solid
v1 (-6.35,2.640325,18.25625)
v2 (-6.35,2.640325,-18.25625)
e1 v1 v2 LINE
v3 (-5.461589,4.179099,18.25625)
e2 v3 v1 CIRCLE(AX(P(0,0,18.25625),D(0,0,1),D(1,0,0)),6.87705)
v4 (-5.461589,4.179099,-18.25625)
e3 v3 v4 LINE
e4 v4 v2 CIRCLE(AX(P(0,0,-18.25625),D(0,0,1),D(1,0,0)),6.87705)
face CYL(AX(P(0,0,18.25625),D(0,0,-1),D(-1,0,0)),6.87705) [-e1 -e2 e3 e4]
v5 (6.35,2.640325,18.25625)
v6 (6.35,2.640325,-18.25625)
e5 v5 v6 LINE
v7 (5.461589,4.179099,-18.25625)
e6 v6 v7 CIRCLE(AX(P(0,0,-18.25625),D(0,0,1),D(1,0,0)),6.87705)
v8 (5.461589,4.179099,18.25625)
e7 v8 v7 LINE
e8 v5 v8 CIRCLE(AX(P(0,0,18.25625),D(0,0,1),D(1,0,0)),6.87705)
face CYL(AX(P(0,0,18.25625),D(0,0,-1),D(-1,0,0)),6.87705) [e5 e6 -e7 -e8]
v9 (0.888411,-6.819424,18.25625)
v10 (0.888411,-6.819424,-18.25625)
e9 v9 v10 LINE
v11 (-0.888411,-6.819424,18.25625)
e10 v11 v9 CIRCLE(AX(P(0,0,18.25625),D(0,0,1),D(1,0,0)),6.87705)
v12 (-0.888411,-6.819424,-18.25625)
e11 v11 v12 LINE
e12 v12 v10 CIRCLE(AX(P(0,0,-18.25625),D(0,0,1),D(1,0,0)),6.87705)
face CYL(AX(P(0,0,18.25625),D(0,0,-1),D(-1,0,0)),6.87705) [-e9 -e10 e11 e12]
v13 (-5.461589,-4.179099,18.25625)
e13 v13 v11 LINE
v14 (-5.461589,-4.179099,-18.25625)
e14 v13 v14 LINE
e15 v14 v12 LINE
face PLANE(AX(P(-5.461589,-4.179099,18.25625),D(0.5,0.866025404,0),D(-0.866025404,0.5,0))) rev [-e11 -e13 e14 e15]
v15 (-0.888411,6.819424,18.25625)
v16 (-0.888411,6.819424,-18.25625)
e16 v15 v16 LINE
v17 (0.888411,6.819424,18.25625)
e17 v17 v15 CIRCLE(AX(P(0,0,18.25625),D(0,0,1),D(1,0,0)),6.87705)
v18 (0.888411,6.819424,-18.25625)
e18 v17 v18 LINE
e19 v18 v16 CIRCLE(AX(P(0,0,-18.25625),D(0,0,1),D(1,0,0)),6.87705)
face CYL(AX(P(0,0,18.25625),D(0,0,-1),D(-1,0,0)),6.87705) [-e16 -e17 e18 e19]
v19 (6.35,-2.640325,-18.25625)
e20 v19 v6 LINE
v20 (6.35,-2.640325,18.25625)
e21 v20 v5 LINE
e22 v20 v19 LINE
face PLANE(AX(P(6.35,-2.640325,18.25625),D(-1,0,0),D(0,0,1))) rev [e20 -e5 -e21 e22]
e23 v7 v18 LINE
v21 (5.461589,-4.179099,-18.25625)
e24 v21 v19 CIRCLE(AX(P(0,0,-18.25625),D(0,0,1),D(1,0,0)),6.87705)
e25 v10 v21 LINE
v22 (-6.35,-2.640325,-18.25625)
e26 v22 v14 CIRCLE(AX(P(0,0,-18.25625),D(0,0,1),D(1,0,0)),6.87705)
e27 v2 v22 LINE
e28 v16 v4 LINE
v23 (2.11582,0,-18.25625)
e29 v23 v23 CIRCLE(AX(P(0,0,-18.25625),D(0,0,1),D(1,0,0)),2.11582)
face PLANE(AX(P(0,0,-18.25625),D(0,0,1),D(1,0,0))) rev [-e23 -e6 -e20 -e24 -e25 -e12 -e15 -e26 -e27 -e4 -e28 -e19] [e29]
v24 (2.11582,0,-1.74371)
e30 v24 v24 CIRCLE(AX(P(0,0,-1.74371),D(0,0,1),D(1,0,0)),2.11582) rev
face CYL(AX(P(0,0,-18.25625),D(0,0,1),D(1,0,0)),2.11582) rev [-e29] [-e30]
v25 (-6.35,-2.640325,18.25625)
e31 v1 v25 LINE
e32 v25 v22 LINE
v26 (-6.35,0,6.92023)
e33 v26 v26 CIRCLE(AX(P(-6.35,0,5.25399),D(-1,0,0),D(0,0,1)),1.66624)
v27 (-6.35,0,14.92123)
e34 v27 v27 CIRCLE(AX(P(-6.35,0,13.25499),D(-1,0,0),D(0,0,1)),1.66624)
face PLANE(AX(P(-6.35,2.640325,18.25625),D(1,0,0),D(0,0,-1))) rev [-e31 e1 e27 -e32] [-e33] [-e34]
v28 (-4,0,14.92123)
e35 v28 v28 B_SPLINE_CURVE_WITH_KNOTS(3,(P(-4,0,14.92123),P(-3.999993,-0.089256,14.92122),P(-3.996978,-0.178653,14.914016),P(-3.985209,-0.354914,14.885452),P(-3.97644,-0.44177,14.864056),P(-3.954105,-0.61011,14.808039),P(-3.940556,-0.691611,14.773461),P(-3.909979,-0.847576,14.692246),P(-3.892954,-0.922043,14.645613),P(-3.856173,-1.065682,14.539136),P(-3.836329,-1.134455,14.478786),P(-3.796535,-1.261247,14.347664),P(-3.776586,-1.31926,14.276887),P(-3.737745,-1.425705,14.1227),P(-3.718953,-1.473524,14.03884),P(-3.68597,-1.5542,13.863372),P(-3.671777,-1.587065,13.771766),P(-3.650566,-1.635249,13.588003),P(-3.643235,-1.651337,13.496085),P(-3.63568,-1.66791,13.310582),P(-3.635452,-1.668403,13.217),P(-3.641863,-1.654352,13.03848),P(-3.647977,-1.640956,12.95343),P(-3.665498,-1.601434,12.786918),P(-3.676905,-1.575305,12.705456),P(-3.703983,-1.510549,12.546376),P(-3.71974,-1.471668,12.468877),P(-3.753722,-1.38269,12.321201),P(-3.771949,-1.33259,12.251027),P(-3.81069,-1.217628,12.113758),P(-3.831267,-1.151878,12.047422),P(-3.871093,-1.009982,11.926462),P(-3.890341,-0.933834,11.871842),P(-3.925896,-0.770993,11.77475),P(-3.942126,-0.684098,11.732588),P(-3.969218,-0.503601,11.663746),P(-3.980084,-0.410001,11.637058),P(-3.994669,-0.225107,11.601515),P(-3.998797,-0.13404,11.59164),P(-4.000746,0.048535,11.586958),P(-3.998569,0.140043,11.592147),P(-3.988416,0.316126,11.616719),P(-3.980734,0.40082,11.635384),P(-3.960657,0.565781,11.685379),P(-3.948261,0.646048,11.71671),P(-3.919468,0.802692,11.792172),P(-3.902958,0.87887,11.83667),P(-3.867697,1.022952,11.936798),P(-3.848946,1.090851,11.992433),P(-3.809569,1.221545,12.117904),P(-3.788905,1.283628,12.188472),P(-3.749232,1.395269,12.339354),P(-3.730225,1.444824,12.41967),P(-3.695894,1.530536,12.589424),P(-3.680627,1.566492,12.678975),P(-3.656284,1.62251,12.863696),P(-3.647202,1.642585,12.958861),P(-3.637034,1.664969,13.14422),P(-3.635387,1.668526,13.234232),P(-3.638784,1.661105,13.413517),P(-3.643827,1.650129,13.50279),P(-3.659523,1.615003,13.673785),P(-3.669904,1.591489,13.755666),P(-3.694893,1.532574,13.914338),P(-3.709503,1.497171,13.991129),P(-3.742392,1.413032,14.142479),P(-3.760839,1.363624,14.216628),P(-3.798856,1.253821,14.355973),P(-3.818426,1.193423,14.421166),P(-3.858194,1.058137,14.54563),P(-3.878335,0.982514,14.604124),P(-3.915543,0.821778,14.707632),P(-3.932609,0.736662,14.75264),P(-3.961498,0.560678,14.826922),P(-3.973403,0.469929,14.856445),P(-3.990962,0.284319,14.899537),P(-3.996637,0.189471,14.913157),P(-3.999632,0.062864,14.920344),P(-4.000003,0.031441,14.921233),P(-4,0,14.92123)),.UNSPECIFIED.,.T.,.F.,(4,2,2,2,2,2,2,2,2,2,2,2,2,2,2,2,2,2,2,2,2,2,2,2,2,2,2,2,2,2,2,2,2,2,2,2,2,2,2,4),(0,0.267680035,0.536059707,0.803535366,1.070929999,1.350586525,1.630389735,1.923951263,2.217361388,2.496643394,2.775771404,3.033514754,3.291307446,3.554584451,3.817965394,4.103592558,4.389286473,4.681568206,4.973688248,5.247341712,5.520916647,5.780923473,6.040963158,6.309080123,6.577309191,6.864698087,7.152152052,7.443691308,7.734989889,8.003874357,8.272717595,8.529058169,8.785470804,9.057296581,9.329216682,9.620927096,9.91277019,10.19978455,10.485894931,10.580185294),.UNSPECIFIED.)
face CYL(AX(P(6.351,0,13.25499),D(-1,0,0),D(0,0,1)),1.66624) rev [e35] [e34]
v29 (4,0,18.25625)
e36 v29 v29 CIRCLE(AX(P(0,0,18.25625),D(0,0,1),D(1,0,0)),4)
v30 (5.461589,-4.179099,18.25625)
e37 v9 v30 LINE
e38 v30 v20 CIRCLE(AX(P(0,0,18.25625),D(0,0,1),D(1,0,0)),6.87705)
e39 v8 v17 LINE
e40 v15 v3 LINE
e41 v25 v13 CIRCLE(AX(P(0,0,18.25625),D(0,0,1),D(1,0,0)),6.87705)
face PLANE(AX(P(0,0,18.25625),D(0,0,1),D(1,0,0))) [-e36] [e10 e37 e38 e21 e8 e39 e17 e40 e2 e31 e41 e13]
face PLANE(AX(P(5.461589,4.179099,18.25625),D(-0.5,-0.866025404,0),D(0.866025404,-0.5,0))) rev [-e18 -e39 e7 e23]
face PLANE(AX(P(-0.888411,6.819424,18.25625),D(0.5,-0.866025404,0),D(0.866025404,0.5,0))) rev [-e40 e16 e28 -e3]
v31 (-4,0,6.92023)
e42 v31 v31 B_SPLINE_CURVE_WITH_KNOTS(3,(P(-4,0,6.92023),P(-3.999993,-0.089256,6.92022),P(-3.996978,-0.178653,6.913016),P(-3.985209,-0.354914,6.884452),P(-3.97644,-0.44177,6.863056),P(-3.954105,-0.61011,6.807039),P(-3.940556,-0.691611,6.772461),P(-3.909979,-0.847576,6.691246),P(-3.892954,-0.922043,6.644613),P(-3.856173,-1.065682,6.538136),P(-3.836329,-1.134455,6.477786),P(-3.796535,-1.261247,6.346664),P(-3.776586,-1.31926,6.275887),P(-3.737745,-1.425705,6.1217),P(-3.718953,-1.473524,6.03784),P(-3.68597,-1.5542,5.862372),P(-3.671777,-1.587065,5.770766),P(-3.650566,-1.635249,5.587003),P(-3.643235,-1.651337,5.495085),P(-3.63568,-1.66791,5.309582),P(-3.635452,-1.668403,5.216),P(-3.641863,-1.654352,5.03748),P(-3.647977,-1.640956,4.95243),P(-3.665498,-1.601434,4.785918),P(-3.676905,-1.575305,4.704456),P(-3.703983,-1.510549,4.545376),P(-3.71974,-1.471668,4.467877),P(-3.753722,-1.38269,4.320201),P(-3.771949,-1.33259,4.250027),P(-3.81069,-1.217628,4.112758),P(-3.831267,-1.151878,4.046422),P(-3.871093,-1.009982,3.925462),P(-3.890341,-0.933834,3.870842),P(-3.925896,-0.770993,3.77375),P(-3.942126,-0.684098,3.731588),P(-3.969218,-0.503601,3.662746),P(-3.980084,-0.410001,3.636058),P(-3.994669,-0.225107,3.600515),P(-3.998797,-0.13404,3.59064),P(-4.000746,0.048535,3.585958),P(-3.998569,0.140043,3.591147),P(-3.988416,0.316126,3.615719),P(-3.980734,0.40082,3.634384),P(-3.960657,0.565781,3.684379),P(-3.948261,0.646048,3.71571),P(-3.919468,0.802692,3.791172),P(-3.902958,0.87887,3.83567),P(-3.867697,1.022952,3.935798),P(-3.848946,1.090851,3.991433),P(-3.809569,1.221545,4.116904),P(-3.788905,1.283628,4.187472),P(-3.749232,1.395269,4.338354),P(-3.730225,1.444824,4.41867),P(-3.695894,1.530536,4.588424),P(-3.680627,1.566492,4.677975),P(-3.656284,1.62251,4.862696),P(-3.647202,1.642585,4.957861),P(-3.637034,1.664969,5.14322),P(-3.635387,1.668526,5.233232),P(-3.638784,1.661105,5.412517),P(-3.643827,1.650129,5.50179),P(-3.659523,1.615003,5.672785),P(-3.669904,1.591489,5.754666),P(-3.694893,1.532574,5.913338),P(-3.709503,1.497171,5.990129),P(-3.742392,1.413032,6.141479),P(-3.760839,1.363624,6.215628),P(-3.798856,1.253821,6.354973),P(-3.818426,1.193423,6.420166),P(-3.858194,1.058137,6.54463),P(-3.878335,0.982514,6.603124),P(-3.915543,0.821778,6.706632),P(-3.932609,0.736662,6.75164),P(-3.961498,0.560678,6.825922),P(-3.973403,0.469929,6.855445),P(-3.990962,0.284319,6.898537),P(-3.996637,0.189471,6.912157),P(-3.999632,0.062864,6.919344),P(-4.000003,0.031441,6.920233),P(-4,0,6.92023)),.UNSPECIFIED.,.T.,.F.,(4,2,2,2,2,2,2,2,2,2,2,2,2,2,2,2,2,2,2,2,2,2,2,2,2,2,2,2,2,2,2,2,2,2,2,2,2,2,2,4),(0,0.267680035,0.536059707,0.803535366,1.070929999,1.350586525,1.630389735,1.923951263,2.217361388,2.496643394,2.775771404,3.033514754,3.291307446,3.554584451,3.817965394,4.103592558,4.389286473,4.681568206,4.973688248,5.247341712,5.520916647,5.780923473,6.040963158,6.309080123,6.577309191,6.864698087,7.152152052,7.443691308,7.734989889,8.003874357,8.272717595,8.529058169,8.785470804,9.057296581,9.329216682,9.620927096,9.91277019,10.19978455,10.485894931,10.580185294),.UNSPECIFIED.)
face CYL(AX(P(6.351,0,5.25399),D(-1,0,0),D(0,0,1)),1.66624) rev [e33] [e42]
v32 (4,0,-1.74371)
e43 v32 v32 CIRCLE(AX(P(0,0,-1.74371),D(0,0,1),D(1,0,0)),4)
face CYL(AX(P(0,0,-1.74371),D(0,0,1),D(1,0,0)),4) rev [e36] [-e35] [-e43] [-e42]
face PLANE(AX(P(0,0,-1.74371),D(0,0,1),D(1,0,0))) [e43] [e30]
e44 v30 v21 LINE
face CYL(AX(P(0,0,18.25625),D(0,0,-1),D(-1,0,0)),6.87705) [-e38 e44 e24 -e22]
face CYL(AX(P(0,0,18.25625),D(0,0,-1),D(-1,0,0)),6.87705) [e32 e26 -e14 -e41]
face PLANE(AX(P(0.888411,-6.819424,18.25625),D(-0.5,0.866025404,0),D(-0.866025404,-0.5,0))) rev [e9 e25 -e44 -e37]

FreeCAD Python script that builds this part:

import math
import FreeCAD as App
import Part
import Sketcher
from FreeCAD import Vector
Q = App.Units.Quantity

doc = App.newDocument("Part")
params = doc.addObject("Spreadsheet::Sheet", "Params")
for row, (alias, value) in enumerate([
    ("sketch1_diameter", "0.5 in"),
    ("pad1_length", "0.71875 in"),
    ("pad1_length2", "0.71875 in"),
    ("pad2_length", "1.4375 in"),
    ("pocket2_length", "0.7874 in"),
], start=1):
    params.set(f"A{row}", alias)
    params.set(f"B{row}", "=" + value)
    params.setAlias(f"B{row}", alias)

body = doc.addObject("PartDesign::Body", "Body")

# Sketch on XY plane
sketch1 = body.newObject("Sketcher::SketchObject", "Sketch")
sketch1.AttachmentSupport = (doc.getObject("XY_Plane"), [""])
sketch1.MapMode = "FlatFace"
sketch1.addGeometry(Part.Circle(Vector(0, 0, 0), Vector(0, 0, 1), 6), False)
sketch1.addConstraint(Sketcher.Constraint("Coincident", 0, 3, -1, 1))
sketch1.addConstraint(Sketcher.Constraint("Diameter", 0, Q("0.5 in")))
sketch1.setExpression("Constraints[1]", "Params.sketch1_diameter")
pad1 = body.newObject("PartDesign::Pad", "Pad")
pad1.Profile = sketch1
pad1.Type = "TwoLengths"
pad1.setExpression("Length", "Params.pad1_length")
pad1.setExpression("Length2", "Params.pad1_length2")

# Sketch on XY plane
sketch2 = body.newObject("Sketcher::SketchObject", "Sketch001")
sketch2.AttachmentSupport = (doc.getObject("XY_Plane"), [""])
sketch2.MapMode = "FlatFace"
sketch2.addGeometry(Part.LineSegment(Vector(-0.9, 6.8, 0), Vector(-5.5, 4.2, 0)), False)
sketch2.addGeometry(Part.ArcOfCircle(Part.Circle(Vector(0, 0, 0), Vector(0, 0, 1), 6.9), math.radians(142.58), math.radians(157.42)), False)
sketch2.addGeometry(Part.LineSegment(Vector(-6.3, 2.6, 0), Vector(-6.3, -2.6, 0)), False)
sketch2.addGeometry(Part.ArcOfCircle(Part.Circle(Vector(0, 0, 0), Vector(0, 0, 1), 6.9), math.radians(-157.42), math.radians(-142.58)), False)
sketch2.addGeometry(Part.LineSegment(Vector(-5.5, -4.2, 0), Vector(-0.9, -6.8, 0)), False)
sketch2.addGeometry(Part.ArcOfCircle(Part.Circle(Vector(0, 0, 0), Vector(0, 0, 1), 6.9), math.radians(-97.42), math.radians(-82.58)), False)
sketch2.addGeometry(Part.LineSegment(Vector(0.9, -6.8, 0), Vector(5.5, -4.2, 0)), False)
sketch2.addGeometry(Part.ArcOfCircle(Part.Circle(Vector(0, 0, 0), Vector(0, 0, 1), 6.9), math.radians(-37.42), math.radians(-22.58)), False)
sketch2.addGeometry(Part.LineSegment(Vector(6.3, -2.6, 0), Vector(6.3, 2.6, 0)), False)
sketch2.addGeometry(Part.ArcOfCircle(Part.Circle(Vector(0, 0, 0), Vector(0, 0, 1), 6.9), math.radians(22.58), math.radians(37.42)), False)
sketch2.addGeometry(Part.LineSegment(Vector(5.5, 4.2, 0), Vector(0.9, 6.8, 0)), False)
sketch2.addGeometry(Part.ArcOfCircle(Part.Circle(Vector(0, 0, 0), Vector(0, 0, 1), 6.9), math.radians(82.58), math.radians(97.42)), False)
sketch2.addConstraint(Sketcher.Constraint("Coincident", 0, 2, 1, 1))
sketch2.addConstraint(Sketcher.Constraint("Coincident", 1, 2, 2, 1))
sketch2.addConstraint(Sketcher.Constraint("Coincident", 2, 2, 3, 1))
sketch2.addConstraint(Sketcher.Constraint("Coincident", 3, 2, 4, 1))
sketch2.addConstraint(Sketcher.Constraint("Coincident", 4, 2, 5, 1))
sketch2.addConstraint(Sketcher.Constraint("Coincident", 5, 2, 6, 1))
sketch2.addConstraint(Sketcher.Constraint("Coincident", 6, 2, 7, 1))
sketch2.addConstraint(Sketcher.Constraint("Coincident", 7, 2, 8, 1))
sketch2.addConstraint(Sketcher.Constraint("Coincident", 8, 2, 9, 1))
sketch2.addConstraint(Sketcher.Constraint("Coincident", 9, 2, 10, 1))
sketch2.addConstraint(Sketcher.Constraint("Coincident", 10, 2, 11, 1))
sketch2.addConstraint(Sketcher.Constraint("Coincident", 11, 2, 0, 1))
sketch2.addConstraint(Sketcher.Constraint("Vertical", 2))
sketch2.addConstraint(Sketcher.Constraint("Vertical", 8))
sketch2.addConstraint(Sketcher.Constraint("Coincident", 1, 3, -1, 1))
sketch2.addConstraint(Sketcher.Constraint("Coincident", 3, 3, -1, 1))
sketch2.addConstraint(Sketcher.Constraint("Coincident", 5, 3, -1, 1))
sketch2.addConstraint(Sketcher.Constraint("Coincident", 7, 3, -1, 1))
sketch2.addConstraint(Sketcher.Constraint("Coincident", 9, 3, -1, 1))
sketch2.addConstraint(Sketcher.Constraint("Coincident", 11, 3, -1, 1))
sketch2.addConstraint(Sketcher.Constraint("Equal", 1, 3))
sketch2.addConstraint(Sketcher.Constraint("Equal", 3, 5))
sketch2.addConstraint(Sketcher.Constraint("Equal", 5, 7))
sketch2.addConstraint(Sketcher.Constraint("Equal", 7, 9))
sketch2.addConstraint(Sketcher.Constraint("Equal", 9, 11))
sketch2.addConstraint(Sketcher.Constraint("Parallel", 0, 6))
sketch2.addConstraint(Sketcher.Constraint("Parallel", 4, 10))
sketch2.addConstraint(Sketcher.Constraint("Horizontal", 4, 2, 5, 2))
sketch2.addConstraint(Sketcher.Constraint("Horizontal", 3, 2, 6, 2))
sketch2.addConstraint(Sketcher.Constraint("Horizontal", 2, 2, 7, 2))
sketch2.addConstraint(Sketcher.Constraint("Horizontal", 0, 2, 9, 2))
sketch2.addConstraint(Sketcher.Constraint("Vertical", 0, 2, 3, 2))
sketch2.addConstraint(Sketcher.Constraint("Angle", 0, Q("-150 deg")))
sketch2.addConstraint(Sketcher.Constraint("DistanceX", 1, 2, -1, 1, Q("0.25 in")))
sketch2.addConstraint(Sketcher.Constraint("DistanceX", 3, 2, 5, 2, Q("0.25 in")))
sketch2.addConstraint(Sketcher.Constraint("Radius", 1, Q("6.87705 mm")))
pad2 = body.newObject("PartDesign::Pad", "Pad001")
pad2.Profile = sketch2
pad2.setExpression("Length", "Params.pad2_length")
pad2.Midplane = True

# Sketch on XY plane
sketch3 = body.newObject("Sketcher::SketchObject", "Sketch002")
sketch3.AttachmentSupport = (doc.getObject("XY_Plane"), [""])
sketch3.MapMode = "FlatFace"
sketch3.addGeometry(Part.Circle(Vector(0, 0, 0), Vector(0, 0, 1), 2.1), False)
sketch3.addConstraint(Sketcher.Constraint("Coincident", 0, 3, -1, 1))
sketch3.addConstraint(Sketcher.Constraint("Diameter", 0, Q("0.1666 in")))
pocket1 = body.newObject("PartDesign::Pocket", "Pocket")
pocket1.Profile = sketch3
pocket1.Type = "ThroughAll"
pocket1.Midplane = True

# Sketch on XY plane
sketch4 = body.newObject("Sketcher::SketchObject", "Sketch003")
sketch4.AttachmentSupport = (doc.getObject("XY_Plane"), [""])
sketch4.MapMode = "FlatFace"
sketch4.AttachmentOffset = App.Placement(Vector(0, 0, 0.71875 * 25.4), App.Rotation())
sketch4.addGeometry(Part.Circle(Vector(0, 0, 0), Vector(0, 0, 1), 4), False)
sketch4.addConstraint(Sketcher.Constraint("Coincident", 0, 3, -1, 1))
sketch4.addConstraint(Sketcher.Constraint("Diameter", 0, Q("8 mm")))
pocket2 = body.newObject("PartDesign::Pocket", "Pocket001")
pocket2.Profile = sketch4
pocket2.setExpression("Length", "Params.pocket2_length")

# Sketch on YZ plane
sketch5 = body.newObject("Sketcher::SketchObject", "Sketch004")
sketch5.AttachmentSupport = (doc.getObject("YZ_Plane"), [""])
sketch5.MapMode = "FlatFace"
sketch5.AttachmentOffset = App.Placement(Vector(0, 0, -0.25 * 25.4), App.Rotation())
sketch5.addGeometry(Part.Circle(Vector(0, 5.3, 0), Vector(0, 0, 1), 1.7), False)
sketch5.addConstraint(Sketcher.Constraint("PointOnObject", 0, 3, -2))
sketch5.addConstraint(Sketcher.Constraint("Diameter", 0, Q("0.1312 in")))
sketch5.addConstraint(Sketcher.Constraint("DistanceY", -1, 1, 0, 3, Q("5.25399 mm")))
pocket3 = body.newObject("PartDesign::Pocket", "Pocket002")
pocket3.Profile = sketch5
pocket3.Type = "UpToFirst"
pocket3.Reversed = True

# Sketch on YZ plane
sketch6 = body.newObject("Sketcher::SketchObject", "Sketch005")
sketch6.AttachmentSupport = (doc.getObject("YZ_Plane"), [""])
sketch6.MapMode = "FlatFace"
sketch6.AttachmentOffset = App.Placement(Vector(0, 0, -0.25 * 25.4), App.Rotation())
sketch6.addGeometry(Part.Circle(Vector(0, 13.3, 0), Vector(0, 0, 1), 1.7), False)
sketch6.addConstraint(Sketcher.Constraint("PointOnObject", 0, 3, -2))
sketch6.addConstraint(Sketcher.Constraint("Diameter", 0, Q("0.1312 in")))
sketch6.addConstraint(Sketcher.Constraint("DistanceY", -1, 1, 0, 3, Q("13.25499 mm")))
pocket4 = body.newObject("PartDesign::Pocket", "Pocket003")
pocket4.Profile = sketch6
pocket4.Type = "UpToFirst"
pocket4.Reversed = True

doc.recompute()
